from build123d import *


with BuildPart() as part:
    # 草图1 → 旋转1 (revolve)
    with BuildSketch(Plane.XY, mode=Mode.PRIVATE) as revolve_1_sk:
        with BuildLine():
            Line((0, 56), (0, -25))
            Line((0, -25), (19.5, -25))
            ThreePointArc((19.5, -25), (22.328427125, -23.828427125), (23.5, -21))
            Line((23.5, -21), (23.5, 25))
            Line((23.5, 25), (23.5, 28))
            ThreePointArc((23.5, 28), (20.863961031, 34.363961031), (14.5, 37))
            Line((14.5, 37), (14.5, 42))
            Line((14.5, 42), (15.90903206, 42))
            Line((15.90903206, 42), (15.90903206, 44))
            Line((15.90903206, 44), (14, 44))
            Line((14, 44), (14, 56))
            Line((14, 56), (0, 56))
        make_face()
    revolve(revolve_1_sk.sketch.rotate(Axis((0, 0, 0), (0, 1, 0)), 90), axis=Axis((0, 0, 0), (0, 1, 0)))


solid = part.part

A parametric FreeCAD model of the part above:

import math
import FreeCAD as App
import Part
import Sketcher
Q = App.Units.Quantity

doc = App.newDocument("Part")
body = doc.addObject("PartDesign::Body", "Body")

# Sketch on XY plane
sketch1 = body.newObject("Sketcher::SketchObject", "Sketch")
sketch1.AttachmentSupport = (doc.getObject("XY_Plane"), [""])
sketch1.MapMode = "FlatFace"
sketch1.addGeometry(Part.LineSegment(App.Vector(0, 56, 0), App.Vector(0, -25, 0)), False)
sketch1.addGeometry(Part.LineSegment(App.Vector(0, -25, 0), App.Vector(19.5, -25, 0)), False)
sketch1.addGeometry(Part.ArcOfCircle(Part.Circle(App.Vector(19.5, -21, 0), App.Vector(0, 0, 1), 4), math.radians(-90), math.radians(0)), False)
sketch1.addGeometry(Part.LineSegment(App.Vector(23.5, -21, 0), App.Vector(23.5, 28, 0)), False)
sketch1.addGeometry(Part.ArcOfCircle(Part.Circle(App.Vector(14.5, 28, 0), App.Vector(0, 0, 1), 9), math.radians(0), math.radians(90)), False)
sketch1.addGeometry(Part.LineSegment(App.Vector(14.5, 37, 0), App.Vector(14.5, 42, 0)), False)
sketch1.addGeometry(Part.LineSegment(App.Vector(14.5, 42, 0), App.Vector(15.909032, 42, 0)), False)
sketch1.addGeometry(Part.LineSegment(App.Vector(15.909032, 42, 0), App.Vector(15.909032, 44, 0)), False)
sketch1.addGeometry(Part.LineSegment(App.Vector(15.909032, 44, 0), App.Vector(14, 44, 0)), False)
sketch1.addGeometry(Part.LineSegment(App.Vector(14, 44, 0), App.Vector(14, 56, 0)), False)
sketch1.addGeometry(Part.LineSegment(App.Vector(14, 56, 0), App.Vector(0, 56, 0)), False)
sketch1.addConstraint(Sketcher.Constraint("Coincident", 0, 2, 1, 1))
sketch1.addConstraint(Sketcher.Constraint("Tangent", 1, 2, 2, 1))
sketch1.addConstraint(Sketcher.Constraint("Tangent", 2, 2, 3, 1))
sketch1.addConstraint(Sketcher.Constraint("Tangent", 3, 2, 4, 1))
sketch1.addConstraint(Sketcher.Constraint("Coincident", 4, 2, 5, 1))
sketch1.addConstraint(Sketcher.Constraint("Coincident", 5, 2, 6, 1))
sketch1.addConstraint(Sketcher.Constraint("Coincident", 6, 2, 7, 1))
sketch1.addConstraint(Sketcher.Constraint("Coincident", 7, 2, 8, 1))
sketch1.addConstraint(Sketcher.Constraint("Coincident", 8, 2, 9, 1))
sketch1.addConstraint(Sketcher.Constraint("Coincident", 9, 2, 10, 1))
sketch1.addConstraint(Sketcher.Constraint("Coincident", 10, 2, 0, 1))
sketch1.addConstraint(Sketcher.Constraint("Vertical", 0))
sketch1.addConstraint(Sketcher.Constraint("Horizontal", 1))
sketch1.addConstraint(Sketcher.Constraint("Vertical", 3))
sketch1.addConstraint(Sketcher.Constraint("Vertical", 5))
sketch1.addConstraint(Sketcher.Constraint("Horizontal", 6))
sketch1.addConstraint(Sketcher.Constraint("Vertical", 7))
sketch1.addConstraint(Sketcher.Constraint("Horizontal", 8))
sketch1.addConstraint(Sketcher.Constraint("Vertical", 9))
sketch1.addConstraint(Sketcher.Constraint("Horizontal", 10))
sketch1.addConstraint(Sketcher.Constraint("PointOnObject", 0, 2, -2))
sketch1.addConstraint(Sketcher.Constraint("Radius", 2, Q("4 mm")))
sketch1.addConstraint(Sketcher.Constraint("Radius", 4, Q("9 mm")))
sketch1.addConstraint(Sketcher.Constraint("DistanceX", 10, 2, 10, 1, Q("14 mm")))
sketch1.addConstraint(Sketcher.Constraint("DistanceY", 0, 2, 0, 1, Q("81 mm")))
sketch1.addConstraint(Sketcher.Constraint("DistanceY", 3, 1, 3, 2, Q("49 mm")))
sketch1.addConstraint(Sketcher.Constraint("DistanceY", 5, 1, 5, 2, Q("5 mm")))
sketch1.addConstraint(Sketcher.Constraint("DistanceY", 7, 1, 7, 2, Q("2 mm")))
sketch1.addConstraint(Sketcher.Constraint("DistanceX", 1, 1, 1, 2, Q("19.5 mm")))
sketch1.addConstraint(Sketcher.Constraint("DistanceY", 2, 3, -1, 1, Q("21 mm")))
sketch1.addConstraint(Sketcher.Constraint("DistanceX", 4, 2, 3, 2, Q("9 mm")))
sketch1.addConstraint(Sketcher.Constraint("DistanceX", 6, 1, 6, 2, Q("1.409032 mm")))
revolution = body.newObject("PartDesign::Revolution", "Revolution")
revolution.Profile = sketch1
revolution.ReferenceAxis = (sketch1, ["V_Axis"])
revolution.Angle = 360

doc.recompute()
